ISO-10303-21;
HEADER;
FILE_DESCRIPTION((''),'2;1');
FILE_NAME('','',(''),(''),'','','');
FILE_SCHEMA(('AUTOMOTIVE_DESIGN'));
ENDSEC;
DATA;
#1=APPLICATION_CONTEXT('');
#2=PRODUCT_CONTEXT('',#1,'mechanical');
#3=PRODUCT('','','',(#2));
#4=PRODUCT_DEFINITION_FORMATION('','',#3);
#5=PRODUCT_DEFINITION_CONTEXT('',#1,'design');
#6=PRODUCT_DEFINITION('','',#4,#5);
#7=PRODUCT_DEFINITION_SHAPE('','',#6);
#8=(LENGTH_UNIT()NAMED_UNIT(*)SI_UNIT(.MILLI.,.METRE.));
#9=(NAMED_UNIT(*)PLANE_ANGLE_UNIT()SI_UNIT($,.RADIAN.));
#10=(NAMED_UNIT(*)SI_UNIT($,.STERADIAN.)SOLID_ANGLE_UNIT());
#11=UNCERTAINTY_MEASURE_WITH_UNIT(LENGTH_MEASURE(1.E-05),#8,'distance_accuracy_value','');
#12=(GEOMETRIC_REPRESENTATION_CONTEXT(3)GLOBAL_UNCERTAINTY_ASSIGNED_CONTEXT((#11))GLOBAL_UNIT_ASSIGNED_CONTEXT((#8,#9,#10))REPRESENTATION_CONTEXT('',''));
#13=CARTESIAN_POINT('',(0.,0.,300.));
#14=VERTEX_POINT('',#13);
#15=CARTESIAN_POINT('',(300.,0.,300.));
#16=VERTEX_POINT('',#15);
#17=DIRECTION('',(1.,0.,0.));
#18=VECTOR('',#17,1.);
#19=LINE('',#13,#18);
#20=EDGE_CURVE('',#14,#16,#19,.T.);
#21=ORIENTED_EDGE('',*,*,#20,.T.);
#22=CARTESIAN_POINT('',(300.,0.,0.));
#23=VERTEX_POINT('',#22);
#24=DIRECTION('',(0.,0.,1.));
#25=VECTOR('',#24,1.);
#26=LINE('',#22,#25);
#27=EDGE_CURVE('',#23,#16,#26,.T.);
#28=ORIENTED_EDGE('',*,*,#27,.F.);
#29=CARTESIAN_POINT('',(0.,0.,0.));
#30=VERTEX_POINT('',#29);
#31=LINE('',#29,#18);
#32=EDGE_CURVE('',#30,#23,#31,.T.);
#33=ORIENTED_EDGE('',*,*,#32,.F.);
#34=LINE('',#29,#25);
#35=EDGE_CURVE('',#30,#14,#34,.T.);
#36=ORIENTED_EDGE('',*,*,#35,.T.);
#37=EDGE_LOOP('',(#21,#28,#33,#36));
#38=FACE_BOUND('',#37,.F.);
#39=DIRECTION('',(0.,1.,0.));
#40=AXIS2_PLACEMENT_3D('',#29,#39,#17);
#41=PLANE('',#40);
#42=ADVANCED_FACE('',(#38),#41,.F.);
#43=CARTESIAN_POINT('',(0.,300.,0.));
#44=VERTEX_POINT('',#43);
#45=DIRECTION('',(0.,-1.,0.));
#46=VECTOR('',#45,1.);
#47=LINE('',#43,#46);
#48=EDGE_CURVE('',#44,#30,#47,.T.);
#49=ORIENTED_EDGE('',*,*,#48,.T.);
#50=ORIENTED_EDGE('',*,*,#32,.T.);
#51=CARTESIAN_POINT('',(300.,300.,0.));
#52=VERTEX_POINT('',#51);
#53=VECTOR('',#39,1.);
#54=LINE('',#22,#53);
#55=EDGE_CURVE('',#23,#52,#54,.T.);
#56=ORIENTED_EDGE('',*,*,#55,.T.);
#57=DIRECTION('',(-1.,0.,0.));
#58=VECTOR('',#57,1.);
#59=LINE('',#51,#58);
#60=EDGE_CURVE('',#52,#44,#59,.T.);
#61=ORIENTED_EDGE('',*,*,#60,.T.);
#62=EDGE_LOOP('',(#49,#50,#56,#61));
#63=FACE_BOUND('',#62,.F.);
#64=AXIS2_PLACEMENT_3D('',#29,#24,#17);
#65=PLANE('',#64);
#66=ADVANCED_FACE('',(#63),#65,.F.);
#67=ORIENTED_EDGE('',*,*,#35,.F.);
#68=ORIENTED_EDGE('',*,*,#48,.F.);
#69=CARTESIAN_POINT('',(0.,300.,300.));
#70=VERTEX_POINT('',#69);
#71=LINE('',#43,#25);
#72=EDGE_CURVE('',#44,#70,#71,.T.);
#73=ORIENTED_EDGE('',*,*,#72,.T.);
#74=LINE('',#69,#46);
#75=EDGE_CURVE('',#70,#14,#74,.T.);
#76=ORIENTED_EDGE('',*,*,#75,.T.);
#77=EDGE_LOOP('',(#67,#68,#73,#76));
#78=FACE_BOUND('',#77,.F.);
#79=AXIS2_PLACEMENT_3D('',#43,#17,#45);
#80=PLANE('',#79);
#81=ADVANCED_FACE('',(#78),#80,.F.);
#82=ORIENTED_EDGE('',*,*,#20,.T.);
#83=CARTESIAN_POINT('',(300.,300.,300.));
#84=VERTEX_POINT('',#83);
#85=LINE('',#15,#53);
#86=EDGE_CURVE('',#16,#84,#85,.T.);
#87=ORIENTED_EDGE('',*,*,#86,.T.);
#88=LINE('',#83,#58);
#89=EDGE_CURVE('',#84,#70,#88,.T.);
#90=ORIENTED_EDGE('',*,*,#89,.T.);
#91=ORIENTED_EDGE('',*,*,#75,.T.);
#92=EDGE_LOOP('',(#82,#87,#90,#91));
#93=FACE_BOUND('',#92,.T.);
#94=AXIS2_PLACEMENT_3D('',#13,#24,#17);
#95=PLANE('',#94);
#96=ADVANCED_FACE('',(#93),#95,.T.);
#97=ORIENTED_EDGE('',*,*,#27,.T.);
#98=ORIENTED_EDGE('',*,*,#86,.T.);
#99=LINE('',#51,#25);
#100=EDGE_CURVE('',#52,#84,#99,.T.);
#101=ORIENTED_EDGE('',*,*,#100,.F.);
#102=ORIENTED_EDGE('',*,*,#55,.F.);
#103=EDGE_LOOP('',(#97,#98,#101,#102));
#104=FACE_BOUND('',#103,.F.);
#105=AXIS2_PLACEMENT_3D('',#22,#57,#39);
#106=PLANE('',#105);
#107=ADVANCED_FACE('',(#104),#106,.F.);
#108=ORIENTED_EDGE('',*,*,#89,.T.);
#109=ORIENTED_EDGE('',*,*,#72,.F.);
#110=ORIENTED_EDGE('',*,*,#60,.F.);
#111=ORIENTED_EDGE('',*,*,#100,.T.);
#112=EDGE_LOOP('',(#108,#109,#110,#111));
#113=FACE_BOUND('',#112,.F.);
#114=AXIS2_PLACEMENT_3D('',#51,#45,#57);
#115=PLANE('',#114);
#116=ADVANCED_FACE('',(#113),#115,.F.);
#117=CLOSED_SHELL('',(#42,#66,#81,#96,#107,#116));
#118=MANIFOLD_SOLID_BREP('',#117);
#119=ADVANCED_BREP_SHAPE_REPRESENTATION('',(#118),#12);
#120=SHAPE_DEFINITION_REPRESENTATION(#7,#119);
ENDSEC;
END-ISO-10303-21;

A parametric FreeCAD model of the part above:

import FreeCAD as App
import Part
import Sketcher
from FreeCAD import Vector

doc = App.newDocument("Part")
body = doc.addObject("PartDesign::Body", "Body")

sketch1 = body.newObject("Sketcher::SketchObject", "Sketch")
sketch1.AttachmentSupport = (doc.getObject("XY_Plane"), [""])
sketch1.MapMode = "FlatFace"
sketch1.addGeometry(Part.LineSegment(Vector(0, 300, 0), Vector(0, 0, 0)), False)
sketch1.addGeometry(Part.LineSegment(Vector(0, 0, 0), Vector(300, 0, 0)), False)
sketch1.addGeometry(Part.LineSegment(Vector(300, 0, 0), Vector(300, 300, 0)), False)
sketch1.addGeometry(Part.LineSegment(Vector(300, 300, 0), Vector(0, 300, 0)), False)
sketch1.addConstraint(Sketcher.Constraint("Coincident", 0, 2, 1, 1))
sketch1.addConstraint(Sketcher.Constraint("Coincident", 1, 2, 2, 1))
sketch1.addConstraint(Sketcher.Constraint("Coincident", 2, 2, 3, 1))
sketch1.addConstraint(Sketcher.Constraint("Coincident", 3, 2, 0, 1))
sketch1.addConstraint(Sketcher.Constraint("Vertical", 0))
sketch1.addConstraint(Sketcher.Constraint("Horizontal", 1))
sketch1.addConstraint(Sketcher.Constraint("Vertical", 2))
sketch1.addConstraint(Sketcher.Constraint("Horizontal", 3))
sketch1.addConstraint(Sketcher.Constraint("Coincident", 0, 2, -1, 1))
sketch1.addConstraint(Sketcher.Constraint("Equal", 3, 0))
sketch1.addConstraint(Sketcher.Constraint("DistanceX", 1, 1, 1, 2, 300.0))
pad1 = body.newObject("PartDesign::Pad", "Pad")
pad1.Profile = sketch1
pad1.Length = 300

doc.recompute()
